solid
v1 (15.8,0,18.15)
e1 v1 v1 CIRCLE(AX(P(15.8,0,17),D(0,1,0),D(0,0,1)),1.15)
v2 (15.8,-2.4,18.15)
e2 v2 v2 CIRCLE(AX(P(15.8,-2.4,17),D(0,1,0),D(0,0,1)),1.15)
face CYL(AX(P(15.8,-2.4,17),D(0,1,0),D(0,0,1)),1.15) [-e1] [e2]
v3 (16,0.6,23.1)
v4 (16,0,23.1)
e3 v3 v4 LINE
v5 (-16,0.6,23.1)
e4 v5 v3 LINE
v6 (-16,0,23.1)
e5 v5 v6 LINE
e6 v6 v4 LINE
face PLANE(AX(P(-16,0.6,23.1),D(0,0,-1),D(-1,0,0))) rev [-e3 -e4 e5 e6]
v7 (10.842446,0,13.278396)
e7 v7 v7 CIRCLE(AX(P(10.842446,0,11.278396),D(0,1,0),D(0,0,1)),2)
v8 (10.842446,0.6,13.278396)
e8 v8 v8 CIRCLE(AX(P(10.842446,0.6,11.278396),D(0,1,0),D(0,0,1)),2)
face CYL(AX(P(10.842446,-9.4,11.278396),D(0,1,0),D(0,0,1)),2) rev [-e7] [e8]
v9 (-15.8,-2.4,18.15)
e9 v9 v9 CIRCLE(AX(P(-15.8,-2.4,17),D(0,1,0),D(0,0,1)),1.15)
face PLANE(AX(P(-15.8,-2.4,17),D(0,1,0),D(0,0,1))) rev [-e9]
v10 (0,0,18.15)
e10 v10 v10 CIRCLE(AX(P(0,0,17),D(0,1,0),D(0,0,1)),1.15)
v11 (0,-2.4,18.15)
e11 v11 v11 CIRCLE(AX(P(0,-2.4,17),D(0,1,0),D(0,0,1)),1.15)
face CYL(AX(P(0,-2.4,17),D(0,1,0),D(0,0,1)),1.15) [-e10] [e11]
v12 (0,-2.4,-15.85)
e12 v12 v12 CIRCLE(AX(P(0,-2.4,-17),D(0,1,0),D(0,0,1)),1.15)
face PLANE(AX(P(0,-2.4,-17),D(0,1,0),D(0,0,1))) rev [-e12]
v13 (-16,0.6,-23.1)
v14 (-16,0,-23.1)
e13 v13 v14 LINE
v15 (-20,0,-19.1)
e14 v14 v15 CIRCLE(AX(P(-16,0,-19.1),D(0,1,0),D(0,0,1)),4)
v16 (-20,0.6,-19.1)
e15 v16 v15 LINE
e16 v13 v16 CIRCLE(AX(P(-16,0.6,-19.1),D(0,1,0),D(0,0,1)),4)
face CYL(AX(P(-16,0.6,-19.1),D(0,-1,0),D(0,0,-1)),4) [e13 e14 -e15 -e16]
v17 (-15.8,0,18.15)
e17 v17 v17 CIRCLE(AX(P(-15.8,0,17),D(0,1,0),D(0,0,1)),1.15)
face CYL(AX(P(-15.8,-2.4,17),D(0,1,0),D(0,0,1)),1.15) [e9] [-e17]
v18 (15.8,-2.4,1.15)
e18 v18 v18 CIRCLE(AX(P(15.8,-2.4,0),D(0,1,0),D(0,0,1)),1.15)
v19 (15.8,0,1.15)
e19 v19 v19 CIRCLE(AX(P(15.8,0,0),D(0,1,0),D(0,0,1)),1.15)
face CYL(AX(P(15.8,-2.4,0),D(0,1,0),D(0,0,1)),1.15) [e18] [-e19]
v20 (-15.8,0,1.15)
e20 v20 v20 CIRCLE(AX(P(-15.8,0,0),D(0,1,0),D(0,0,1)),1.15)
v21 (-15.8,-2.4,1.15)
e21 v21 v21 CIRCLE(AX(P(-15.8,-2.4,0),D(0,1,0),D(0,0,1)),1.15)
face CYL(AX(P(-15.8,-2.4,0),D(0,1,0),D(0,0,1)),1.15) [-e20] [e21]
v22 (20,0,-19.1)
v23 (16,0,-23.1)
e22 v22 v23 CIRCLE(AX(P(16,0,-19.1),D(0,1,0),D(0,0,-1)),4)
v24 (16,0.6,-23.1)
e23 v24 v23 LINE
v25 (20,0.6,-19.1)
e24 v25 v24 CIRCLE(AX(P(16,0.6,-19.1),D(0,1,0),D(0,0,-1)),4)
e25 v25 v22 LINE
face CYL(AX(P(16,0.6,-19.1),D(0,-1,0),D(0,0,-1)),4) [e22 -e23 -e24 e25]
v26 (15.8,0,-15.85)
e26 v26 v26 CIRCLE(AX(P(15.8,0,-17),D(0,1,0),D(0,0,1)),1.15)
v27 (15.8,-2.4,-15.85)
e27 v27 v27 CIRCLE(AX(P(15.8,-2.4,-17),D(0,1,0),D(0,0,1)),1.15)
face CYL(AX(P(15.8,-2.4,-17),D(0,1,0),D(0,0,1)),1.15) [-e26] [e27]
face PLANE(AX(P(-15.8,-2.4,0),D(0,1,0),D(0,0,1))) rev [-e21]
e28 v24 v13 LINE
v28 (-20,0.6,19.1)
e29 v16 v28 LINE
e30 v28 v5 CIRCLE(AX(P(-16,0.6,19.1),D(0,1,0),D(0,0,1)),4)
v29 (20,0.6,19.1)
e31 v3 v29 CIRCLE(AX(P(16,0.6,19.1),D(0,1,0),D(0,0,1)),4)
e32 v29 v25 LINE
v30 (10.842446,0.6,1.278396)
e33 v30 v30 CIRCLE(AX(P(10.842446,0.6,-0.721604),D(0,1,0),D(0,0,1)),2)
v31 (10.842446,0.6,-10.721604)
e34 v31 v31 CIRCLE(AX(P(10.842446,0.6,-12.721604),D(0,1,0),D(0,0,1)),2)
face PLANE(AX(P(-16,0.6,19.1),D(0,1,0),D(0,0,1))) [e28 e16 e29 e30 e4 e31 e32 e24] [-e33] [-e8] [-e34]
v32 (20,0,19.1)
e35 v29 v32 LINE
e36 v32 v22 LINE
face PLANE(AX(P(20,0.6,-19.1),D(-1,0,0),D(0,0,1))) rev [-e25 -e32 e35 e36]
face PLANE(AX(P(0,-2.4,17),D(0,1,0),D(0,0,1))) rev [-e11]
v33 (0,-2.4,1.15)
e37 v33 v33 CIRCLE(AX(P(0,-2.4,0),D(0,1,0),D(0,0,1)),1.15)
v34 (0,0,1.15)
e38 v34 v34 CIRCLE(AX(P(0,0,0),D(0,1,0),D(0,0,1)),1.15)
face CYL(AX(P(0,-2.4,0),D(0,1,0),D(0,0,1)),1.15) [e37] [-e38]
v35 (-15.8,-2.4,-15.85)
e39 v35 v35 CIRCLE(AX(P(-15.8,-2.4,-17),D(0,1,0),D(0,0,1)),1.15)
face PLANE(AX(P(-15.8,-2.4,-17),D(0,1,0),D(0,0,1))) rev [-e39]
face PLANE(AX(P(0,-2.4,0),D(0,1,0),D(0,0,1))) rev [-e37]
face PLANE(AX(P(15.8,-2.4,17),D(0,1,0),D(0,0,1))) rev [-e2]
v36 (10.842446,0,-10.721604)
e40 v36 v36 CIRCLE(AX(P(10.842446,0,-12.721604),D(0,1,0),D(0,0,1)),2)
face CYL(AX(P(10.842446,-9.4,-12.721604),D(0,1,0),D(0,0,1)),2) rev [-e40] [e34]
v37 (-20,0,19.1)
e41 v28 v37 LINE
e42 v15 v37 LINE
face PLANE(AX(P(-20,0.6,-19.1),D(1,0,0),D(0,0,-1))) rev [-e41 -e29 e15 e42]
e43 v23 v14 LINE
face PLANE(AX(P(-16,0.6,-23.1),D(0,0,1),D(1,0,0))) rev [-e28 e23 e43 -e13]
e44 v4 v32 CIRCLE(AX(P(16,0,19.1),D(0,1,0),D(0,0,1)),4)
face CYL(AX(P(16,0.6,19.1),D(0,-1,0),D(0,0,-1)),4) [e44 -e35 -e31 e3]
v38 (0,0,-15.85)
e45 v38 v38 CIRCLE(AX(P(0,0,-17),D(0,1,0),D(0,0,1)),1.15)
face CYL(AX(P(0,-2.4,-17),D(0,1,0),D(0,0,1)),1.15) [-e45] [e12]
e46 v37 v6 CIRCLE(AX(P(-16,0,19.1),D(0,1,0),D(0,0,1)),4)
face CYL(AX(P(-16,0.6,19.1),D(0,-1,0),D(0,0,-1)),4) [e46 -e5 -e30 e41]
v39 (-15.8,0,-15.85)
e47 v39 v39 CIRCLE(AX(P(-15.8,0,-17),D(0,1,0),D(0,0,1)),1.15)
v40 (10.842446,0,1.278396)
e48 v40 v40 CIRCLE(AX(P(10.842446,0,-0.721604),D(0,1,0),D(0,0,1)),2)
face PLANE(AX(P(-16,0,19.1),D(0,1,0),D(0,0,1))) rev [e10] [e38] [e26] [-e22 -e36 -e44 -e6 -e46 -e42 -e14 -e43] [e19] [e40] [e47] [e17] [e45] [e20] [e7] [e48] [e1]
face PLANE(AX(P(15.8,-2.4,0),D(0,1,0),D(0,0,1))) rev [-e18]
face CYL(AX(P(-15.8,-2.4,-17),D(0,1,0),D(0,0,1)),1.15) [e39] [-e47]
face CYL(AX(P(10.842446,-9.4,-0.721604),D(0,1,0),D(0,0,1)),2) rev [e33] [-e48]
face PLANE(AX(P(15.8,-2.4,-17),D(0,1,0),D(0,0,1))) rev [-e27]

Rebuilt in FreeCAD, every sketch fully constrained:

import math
import FreeCAD as App
import Part
import Sketcher
from FreeCAD import Vector

doc = App.newDocument("Part")
body = doc.addObject("PartDesign::Body", "Body")

# Sketch on XZ plane
sketch1 = body.newObject("Sketcher::SketchObject", "Sketch")
sketch1.AttachmentSupport = (doc.getObject("XZ_Plane"), [""])
sketch1.MapMode = "FlatFace"
sketch1.addGeometry([
    Part.LineSegment(Vector(16, -23.1, 0), Vector(-16, -23.1, 0)),  # 0
    Part.ArcOfCircle(Part.Circle(Vector(-16, -19.1, 0), Vector(0, 0, 1), 4), math.radians(180), math.radians(270)),  # 1
    Part.LineSegment(Vector(-20, -19.1, 0), Vector(-20, 19.1, 0)),  # 2
    Part.ArcOfCircle(Part.Circle(Vector(-16, 19.1, 0), Vector(0, 0, 1), 4), math.radians(90), math.radians(180)),  # 3
    Part.LineSegment(Vector(-16, 23.1, 0), Vector(16, 23.1, 0)),  # 4
    Part.ArcOfCircle(Part.Circle(Vector(16, 19.1, 0), Vector(0, 0, 1), 4), math.radians(0), math.radians(90)),  # 5
    Part.LineSegment(Vector(20, 19.1, 0), Vector(20, -19.1, 0)),  # 6
    Part.ArcOfCircle(Part.Circle(Vector(16, -19.1, 0), Vector(0, 0, 1), 4), math.radians(-90), math.radians(0)),  # 7
], False)
sketch1.addConstraint([
    Sketcher.Constraint("Tangent", 0, 2, 1, 2),
    Sketcher.Constraint("Tangent", 1, 1, 2, 1),
    Sketcher.Constraint("Tangent", 2, 2, 3, 2),
    Sketcher.Constraint("Tangent", 3, 1, 4, 1),
    Sketcher.Constraint("Tangent", 4, 2, 5, 2),
    Sketcher.Constraint("Tangent", 5, 1, 6, 1),
    Sketcher.Constraint("Tangent", 6, 2, 7, 2),
    Sketcher.Constraint("Tangent", 7, 1, 0, 1),
    Sketcher.Constraint("Horizontal", 0),
    Sketcher.Constraint("Vertical", 2),
    Sketcher.Constraint("Horizontal", 4),
    Sketcher.Constraint("Vertical", 6),
    Sketcher.Constraint("Equal", 1, 3),
    Sketcher.Constraint("Equal", 3, 5),
    Sketcher.Constraint("Equal", 5, 7),
    Sketcher.Constraint("Symmetric", 1, 3, 5, 3, -1, 1),
    Sketcher.Constraint("Radius", 1, 4.0),
    Sketcher.Constraint("DistanceX", 0, 2, 0, 1, 32.0),
    Sketcher.Constraint("DistanceY", 2, 1, 2, 2, 38.2),
])
pad1 = body.newObject("PartDesign::Pad", "Pad")
pad1.Profile = sketch1
pad1.Length = 0.6
pad1.Reversed = True

# Sketch on XZ plane
sketch2 = body.newObject("Sketcher::SketchObject", "Sketch001")
sketch2.AttachmentSupport = (doc.getObject("XZ_Plane"), [""])
sketch2.MapMode = "FlatFace"
sketch2.AttachmentOffset = App.Placement(Vector(0, 0, -0.6), App.Rotation())
sketch2.addGeometry([
    Part.Circle(Vector(10.8, 11.3, 0), Vector(0, 0, 1), 2),
    Part.Circle(Vector(10.8, -0.7, 0), Vector(0, 0, 1), 2),
    Part.Circle(Vector(10.8, -12.7, 0), Vector(0, 0, 1), 2),
], False)
sketch2.addConstraint([
    Sketcher.Constraint("Equal", 0, 1),
    Sketcher.Constraint("Equal", 1, 2),
    Sketcher.Constraint("Vertical", 0, 3, 1, 3),
    Sketcher.Constraint("Vertical", 1, 3, 2, 3),
    Sketcher.Constraint("Diameter", 0, 4.0),
    Sketcher.Constraint("DistanceY", 1, 3, 0, 3, 12.0),
    Sketcher.Constraint("DistanceY", 2, 3, 1, 3, 12.0),
    Sketcher.Constraint("DistanceX", -1, 1, 0, 3, 10.842446),
    Sketcher.Constraint("DistanceY", -1, 1, 0, 3, 11.278396),
])
pocket1 = body.newObject("PartDesign::Pocket", "Pocket")
pocket1.Profile = sketch2
pocket1.Length = 10
pocket1.Reversed = True

# Sketch on XZ plane
sketch3 = body.newObject("Sketcher::SketchObject", "Sketch002")
sketch3.AttachmentSupport = (doc.getObject("XZ_Plane"), [""])
sketch3.MapMode = "FlatFace"
sketch3.AttachmentOffset = App.Placement(Vector(0, 0, -0.6), App.Rotation())
sketch3.addGeometry([
    Part.Circle(Vector(15.8, -17, 0), Vector(0, 0, 1), 1.1),  # 0
    Part.Circle(Vector(0, -17, 0), Vector(0, 0, 1), 1.1),  # 1
    Part.Circle(Vector(-15.8, -17, 0), Vector(0, 0, 1), 1.1),  # 2
    Part.Circle(Vector(0, 0, 0), Vector(0, 0, 1), 1.1),  # 3
    Part.Circle(Vector(-15.8, 0, 0), Vector(0, 0, 1), 1.1),  # 4
    Part.Circle(Vector(0, 17, 0), Vector(0, 0, 1), 1.1),  # 5
    Part.Circle(Vector(-15.8, 17, 0), Vector(0, 0, 1), 1.1),  # 6
    Part.Circle(Vector(15.8, 0, 0), Vector(0, 0, 1), 1.1),  # 7
    Part.Circle(Vector(15.8, 17, 0), Vector(0, 0, 1), 1.1),  # 8
], False)
sketch3.addConstraint([
    Sketcher.Constraint("Coincident", 3, 3, -1, 1),
    Sketcher.Constraint("Equal", 0, 1),
    Sketcher.Constraint("Equal", 1, 2),
    Sketcher.Constraint("Equal", 2, 3),
    Sketcher.Constraint("Equal", 3, 4),
    Sketcher.Constraint("Equal", 4, 5),
    Sketcher.Constraint("Equal", 5, 6),
    Sketcher.Constraint("Equal", 6, 7),
    Sketcher.Constraint("Equal", 7, 8),
    Sketcher.Constraint("Symmetric", 1, 3, 5, 3, -1, 1),
    Sketcher.Constraint("Symmetric", 0, 3, 6, 3, -1, 1),
    Sketcher.Constraint("Symmetric", 4, 3, 7, 3, -1, 1),
    Sketcher.Constraint("Symmetric", 2, 3, 8, 3, -1, 1),
    Sketcher.Constraint("Symmetric", 0, 3, 2, 3, -2),
    Sketcher.Constraint("PointOnObject", 1, 3, -2),
    Sketcher.Constraint("PointOnObject", 4, 3, -1),
    Sketcher.Constraint("Horizontal", 0, 3, 1, 3),
    Sketcher.Constraint("Vertical", 2, 3, 4, 3),
    Sketcher.Constraint("Diameter", 0, 2.3),
    Sketcher.Constraint("DistanceY", 0, 3, -1, 1, 17.0),
    Sketcher.Constraint("DistanceX", -1, 1, 0, 3, 15.8),
])
pad2 = body.newObject("PartDesign::Pad", "Pad001")
pad2.Profile = sketch3
pad2.Length = 3

doc.recompute()
